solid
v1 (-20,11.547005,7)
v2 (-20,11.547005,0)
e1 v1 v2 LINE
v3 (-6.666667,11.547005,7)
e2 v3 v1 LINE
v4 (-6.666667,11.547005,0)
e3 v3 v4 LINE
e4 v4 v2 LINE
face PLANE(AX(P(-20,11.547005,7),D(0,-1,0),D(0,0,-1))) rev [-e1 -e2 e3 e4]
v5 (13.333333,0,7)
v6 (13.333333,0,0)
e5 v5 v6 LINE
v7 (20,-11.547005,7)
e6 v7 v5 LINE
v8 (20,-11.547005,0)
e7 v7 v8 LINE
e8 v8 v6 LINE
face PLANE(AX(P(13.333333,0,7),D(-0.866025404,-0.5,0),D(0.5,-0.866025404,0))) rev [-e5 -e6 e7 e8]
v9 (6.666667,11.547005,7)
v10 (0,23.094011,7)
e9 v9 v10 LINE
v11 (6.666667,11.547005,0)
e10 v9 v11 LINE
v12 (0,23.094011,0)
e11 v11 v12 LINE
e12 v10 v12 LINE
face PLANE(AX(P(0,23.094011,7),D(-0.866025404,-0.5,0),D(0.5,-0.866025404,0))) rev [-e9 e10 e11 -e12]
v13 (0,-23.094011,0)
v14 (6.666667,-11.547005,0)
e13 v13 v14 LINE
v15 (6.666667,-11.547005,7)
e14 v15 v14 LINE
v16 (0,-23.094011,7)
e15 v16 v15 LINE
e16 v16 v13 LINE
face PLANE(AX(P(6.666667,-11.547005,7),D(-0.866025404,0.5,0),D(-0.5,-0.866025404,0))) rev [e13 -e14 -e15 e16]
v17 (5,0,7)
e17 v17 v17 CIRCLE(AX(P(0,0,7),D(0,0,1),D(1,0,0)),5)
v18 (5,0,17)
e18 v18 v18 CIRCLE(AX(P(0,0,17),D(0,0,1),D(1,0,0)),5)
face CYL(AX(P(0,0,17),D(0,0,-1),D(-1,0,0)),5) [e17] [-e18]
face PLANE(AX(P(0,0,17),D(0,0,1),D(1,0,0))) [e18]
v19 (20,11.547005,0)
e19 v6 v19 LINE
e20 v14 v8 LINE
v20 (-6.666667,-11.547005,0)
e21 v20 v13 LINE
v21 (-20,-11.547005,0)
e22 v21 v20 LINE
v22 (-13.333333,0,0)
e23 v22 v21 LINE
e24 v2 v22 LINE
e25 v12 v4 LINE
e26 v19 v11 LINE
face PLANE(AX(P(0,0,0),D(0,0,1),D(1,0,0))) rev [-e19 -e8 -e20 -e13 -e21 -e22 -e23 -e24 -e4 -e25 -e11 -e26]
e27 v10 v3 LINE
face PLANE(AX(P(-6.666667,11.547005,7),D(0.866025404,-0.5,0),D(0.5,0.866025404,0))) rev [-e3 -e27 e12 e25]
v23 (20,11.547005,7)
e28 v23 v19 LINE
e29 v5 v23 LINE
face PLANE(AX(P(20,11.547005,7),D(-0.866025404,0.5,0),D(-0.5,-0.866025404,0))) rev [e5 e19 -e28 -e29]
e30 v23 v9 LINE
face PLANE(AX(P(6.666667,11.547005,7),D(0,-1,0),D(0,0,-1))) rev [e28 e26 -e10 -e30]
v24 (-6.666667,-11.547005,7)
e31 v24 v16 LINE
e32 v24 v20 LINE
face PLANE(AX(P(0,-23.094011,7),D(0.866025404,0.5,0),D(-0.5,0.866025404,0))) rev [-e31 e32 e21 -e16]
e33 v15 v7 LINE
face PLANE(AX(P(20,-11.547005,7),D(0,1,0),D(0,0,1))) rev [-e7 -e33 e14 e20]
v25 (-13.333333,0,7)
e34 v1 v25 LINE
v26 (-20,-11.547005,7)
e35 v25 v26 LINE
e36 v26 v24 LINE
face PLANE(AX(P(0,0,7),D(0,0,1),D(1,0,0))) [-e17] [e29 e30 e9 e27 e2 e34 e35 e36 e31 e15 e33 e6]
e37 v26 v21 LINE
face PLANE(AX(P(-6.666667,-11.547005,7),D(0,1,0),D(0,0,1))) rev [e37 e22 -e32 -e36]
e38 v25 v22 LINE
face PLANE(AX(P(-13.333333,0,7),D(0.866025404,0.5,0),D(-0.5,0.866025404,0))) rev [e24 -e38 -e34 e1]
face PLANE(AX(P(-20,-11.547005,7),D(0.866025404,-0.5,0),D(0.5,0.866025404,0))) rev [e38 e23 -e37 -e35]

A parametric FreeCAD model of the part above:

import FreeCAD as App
import Part
import Sketcher
Q = App.Units.Quantity

doc = App.newDocument("Part")
body = doc.addObject("PartDesign::Body", "Body")

# Sketch on XY plane
sketch1 = body.newObject("Sketcher::SketchObject", "Sketch")
sketch1.AttachmentSupport = (doc.getObject("XY_Plane"), [""])
sketch1.MapMode = "FlatFace"
sketch1.addGeometry([
    Part.LineSegment(App.Vector(-6.666667, 11.547005, 0), App.Vector(-20, 11.547005, 0)),  # 0
    Part.LineSegment(App.Vector(-20, 11.547005, 0), App.Vector(-13.333333, 0, 0)),  # 1
    Part.LineSegment(App.Vector(-13.333333, 0, 0), App.Vector(-20, -11.547005, 0)),  # 2
    Part.LineSegment(App.Vector(-20, -11.547005, 0), App.Vector(-6.666667, -11.547005, 0)),  # 3
    Part.LineSegment(App.Vector(-6.666667, -11.547005, 0), App.Vector(0, -23.094011, 0)),  # 4
    Part.LineSegment(App.Vector(0, -23.094011, 0), App.Vector(6.666667, -11.547005, 0)),  # 5
    Part.LineSegment(App.Vector(6.666667, -11.547005, 0), App.Vector(20, -11.547005, 0)),  # 6
    Part.LineSegment(App.Vector(20, -11.547005, 0), App.Vector(13.333333, 0, 0)),  # 7
    Part.LineSegment(App.Vector(13.333333, 0, 0), App.Vector(20, 11.547005, 0)),  # 8
    Part.LineSegment(App.Vector(20, 11.547005, 0), App.Vector(6.666667, 11.547005, 0)),  # 9
    Part.LineSegment(App.Vector(6.666667, 11.547005, 0), App.Vector(0, 23.094011, 0)),  # 10
    Part.LineSegment(App.Vector(0, 23.094011, 0), App.Vector(-6.666667, 11.547005, 0)),  # 11
], False)
sketch1.addConstraint([
    Sketcher.Constraint("Coincident", 0, 2, 1, 1),
    Sketcher.Constraint("Coincident", 1, 2, 2, 1),
    Sketcher.Constraint("Coincident", 2, 2, 3, 1),
    Sketcher.Constraint("Coincident", 3, 2, 4, 1),
    Sketcher.Constraint("Coincident", 4, 2, 5, 1),
    Sketcher.Constraint("Coincident", 5, 2, 6, 1),
    Sketcher.Constraint("Coincident", 6, 2, 7, 1),
    Sketcher.Constraint("Coincident", 7, 2, 8, 1),
    Sketcher.Constraint("Coincident", 8, 2, 9, 1),
    Sketcher.Constraint("Coincident", 9, 2, 10, 1),
    Sketcher.Constraint("Coincident", 10, 2, 11, 1),
    Sketcher.Constraint("Coincident", 11, 2, 0, 1),
    Sketcher.Constraint("Horizontal", 0),
    Sketcher.Constraint("Horizontal", 3),
    Sketcher.Constraint("Horizontal", 6),
    Sketcher.Constraint("Horizontal", 9),
    Sketcher.Constraint("Symmetric", 0, 2, 6, 2, -1, 1),
    Sketcher.Constraint("Symmetric", 1, 2, 7, 2, -1, 1),
    Sketcher.Constraint("Symmetric", 2, 2, 8, 2, -1, 1),
    Sketcher.Constraint("Symmetric", 4, 2, 10, 2, -1, 1),
    Sketcher.Constraint("Symmetric", 3, 2, 5, 2, -2),
    Sketcher.Constraint("PointOnObject", 1, 2, -1),
    Sketcher.Constraint("PointOnObject", 4, 2, -2),
    Sketcher.Constraint("Parallel", 1, 4),
    Sketcher.Constraint("Parallel", 2, 5),
    Sketcher.Constraint("Parallel", 7, 10),
    Sketcher.Constraint("Parallel", 8, 11),
    Sketcher.Constraint("Equal", 2, 4),
    Sketcher.Constraint("Angle", 1, Q("-60 deg")),
    Sketcher.Constraint("DistanceX", 0, 2, -1, 1, Q("20 mm")),
    Sketcher.Constraint("DistanceX", 0, 2, 0, 1, Q("13.333333 mm")),
])
pad1 = body.newObject("PartDesign::Pad", "Pad")
pad1.Profile = sketch1
pad1.Length = 7

# Sketch on XY plane
sketch2 = body.newObject("Sketcher::SketchObject", "Sketch001")
sketch2.AttachmentSupport = (doc.getObject("XY_Plane"), [""])
sketch2.MapMode = "FlatFace"
sketch2.AttachmentOffset = App.Placement(App.Vector(0, 0, 7), App.Rotation())
sketch2.addGeometry(Part.Circle(App.Vector(0, 0, 0), App.Vector(0, 0, 1), 5), False)
sketch2.addConstraint([
    Sketcher.Constraint("Coincident", 0, 3, -1, 1),
    Sketcher.Constraint("Diameter", 0, Q("10 mm")),
])
pad2 = body.newObject("PartDesign::Pad", "Pad001")
pad2.Profile = sketch2
pad2.Length = 10

doc.recompute()
